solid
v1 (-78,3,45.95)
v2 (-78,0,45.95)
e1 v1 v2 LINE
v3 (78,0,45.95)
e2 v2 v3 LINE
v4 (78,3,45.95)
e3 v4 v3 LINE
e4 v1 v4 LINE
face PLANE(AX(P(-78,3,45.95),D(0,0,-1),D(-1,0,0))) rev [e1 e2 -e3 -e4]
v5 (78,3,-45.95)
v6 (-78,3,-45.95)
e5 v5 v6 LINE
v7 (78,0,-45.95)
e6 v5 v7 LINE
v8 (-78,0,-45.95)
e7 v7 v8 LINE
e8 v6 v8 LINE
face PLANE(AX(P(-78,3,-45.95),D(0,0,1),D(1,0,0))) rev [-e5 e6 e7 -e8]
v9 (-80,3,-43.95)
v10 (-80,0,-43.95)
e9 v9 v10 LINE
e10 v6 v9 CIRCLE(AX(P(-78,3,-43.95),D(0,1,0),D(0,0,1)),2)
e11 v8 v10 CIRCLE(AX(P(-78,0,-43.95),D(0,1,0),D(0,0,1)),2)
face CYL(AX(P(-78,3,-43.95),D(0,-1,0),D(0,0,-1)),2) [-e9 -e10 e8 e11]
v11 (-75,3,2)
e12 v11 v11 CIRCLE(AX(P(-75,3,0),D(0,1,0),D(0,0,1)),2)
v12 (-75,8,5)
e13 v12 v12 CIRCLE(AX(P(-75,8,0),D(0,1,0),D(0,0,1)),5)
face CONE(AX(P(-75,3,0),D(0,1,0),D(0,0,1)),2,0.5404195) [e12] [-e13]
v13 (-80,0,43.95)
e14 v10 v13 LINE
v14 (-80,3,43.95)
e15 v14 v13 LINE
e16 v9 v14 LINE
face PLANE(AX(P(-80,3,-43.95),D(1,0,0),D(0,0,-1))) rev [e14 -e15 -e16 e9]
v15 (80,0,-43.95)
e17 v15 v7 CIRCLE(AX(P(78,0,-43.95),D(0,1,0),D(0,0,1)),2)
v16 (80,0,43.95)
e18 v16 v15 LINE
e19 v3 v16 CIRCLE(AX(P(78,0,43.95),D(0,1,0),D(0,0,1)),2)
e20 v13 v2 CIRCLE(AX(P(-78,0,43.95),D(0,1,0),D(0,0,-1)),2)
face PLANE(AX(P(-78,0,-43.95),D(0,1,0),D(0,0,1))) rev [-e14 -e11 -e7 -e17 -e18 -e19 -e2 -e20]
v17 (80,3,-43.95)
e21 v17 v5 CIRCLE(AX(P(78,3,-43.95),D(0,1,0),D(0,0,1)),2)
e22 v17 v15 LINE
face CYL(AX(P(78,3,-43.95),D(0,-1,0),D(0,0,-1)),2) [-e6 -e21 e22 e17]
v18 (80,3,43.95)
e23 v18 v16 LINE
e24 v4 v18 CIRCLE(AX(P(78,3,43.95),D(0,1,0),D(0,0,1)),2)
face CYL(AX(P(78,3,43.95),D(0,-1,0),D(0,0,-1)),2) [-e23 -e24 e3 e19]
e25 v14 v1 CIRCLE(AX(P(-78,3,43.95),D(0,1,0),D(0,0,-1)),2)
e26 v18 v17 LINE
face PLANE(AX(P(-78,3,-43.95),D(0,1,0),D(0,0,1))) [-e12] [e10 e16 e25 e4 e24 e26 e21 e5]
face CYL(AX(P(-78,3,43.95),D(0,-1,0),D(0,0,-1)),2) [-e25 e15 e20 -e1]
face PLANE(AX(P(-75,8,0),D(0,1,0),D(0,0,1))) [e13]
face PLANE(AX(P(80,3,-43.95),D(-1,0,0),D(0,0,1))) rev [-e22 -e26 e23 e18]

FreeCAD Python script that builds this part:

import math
import FreeCAD as App
import Part
import Sketcher

doc = App.newDocument("Part")
body = doc.addObject("PartDesign::Body", "Body")

sketch1 = doc.addObject("Sketcher::SketchObject", "Sketch")
body.addObject(sketch1)
sketch1.AttachmentSupport = (doc.XZ_Plane, [""])
sketch1.MapMode = "FlatFace"
sketch1.addGeometry(Part.LineSegment(App.Vector(78, -46, 0), App.Vector(-78, -46, 0)), False)
sketch1.addGeometry(Part.ArcOfCircle(Part.Circle(App.Vector(-78, -43.9, 0), App.Vector(0, 0, 1), 2), math.radians(-180), math.radians(-90)), False)
sketch1.addGeometry(Part.LineSegment(App.Vector(-80, -44, 0), App.Vector(-80, 44, 0)), False)
sketch1.addGeometry(Part.ArcOfCircle(Part.Circle(App.Vector(-78, 43.9, 0), App.Vector(0, 0, 1), 2), math.radians(90), math.radians(180)), False)
sketch1.addGeometry(Part.LineSegment(App.Vector(-78, 46, 0), App.Vector(78, 46, 0)), False)
sketch1.addGeometry(Part.ArcOfCircle(Part.Circle(App.Vector(78, 43.9, 0), App.Vector(0, 0, 1), 2), math.radians(0), math.radians(90)), False)
sketch1.addGeometry(Part.LineSegment(App.Vector(80, 44, 0), App.Vector(80, -44, 0)), False)
sketch1.addGeometry(Part.ArcOfCircle(Part.Circle(App.Vector(78, -43.9, 0), App.Vector(0, 0, 1), 2), math.radians(-90), math.radians(0)), False)
sketch1.addConstraint(Sketcher.Constraint("Tangent", 0, 2, 1, 2))
sketch1.addConstraint(Sketcher.Constraint("Tangent", 1, 1, 2, 1))
sketch1.addConstraint(Sketcher.Constraint("Tangent", 2, 2, 3, 2))
sketch1.addConstraint(Sketcher.Constraint("Tangent", 3, 1, 4, 1))
sketch1.addConstraint(Sketcher.Constraint("Tangent", 4, 2, 5, 2))
sketch1.addConstraint(Sketcher.Constraint("Tangent", 5, 1, 6, 1))
sketch1.addConstraint(Sketcher.Constraint("Tangent", 6, 2, 7, 2))
sketch1.addConstraint(Sketcher.Constraint("Tangent", 7, 1, 0, 1))
sketch1.addConstraint(Sketcher.Constraint("Horizontal", 0))
sketch1.addConstraint(Sketcher.Constraint("Vertical", 2))
sketch1.addConstraint(Sketcher.Constraint("Horizontal", 4))
sketch1.addConstraint(Sketcher.Constraint("Vertical", 6))
sketch1.addConstraint(Sketcher.Constraint("Equal", 1, 3))
sketch1.addConstraint(Sketcher.Constraint("Equal", 3, 5))
sketch1.addConstraint(Sketcher.Constraint("Equal", 5, 7))
sketch1.addConstraint(Sketcher.Constraint("Symmetric", 1, 3, 5, 3, -1, 1))
sketch1.addConstraint(Sketcher.Constraint("Radius", 1, 2.0))
sketch1.addConstraint(Sketcher.Constraint("DistanceX", 0, 2, 0, 1, 156.0))
sketch1.addConstraint(Sketcher.Constraint("DistanceY", 2, 1, 2, 2, 87.9))
pad1 = doc.addObject("PartDesign::Pad", "Pad")
body.addObject(pad1)
pad1.Profile = sketch1
pad1.Length = 3
pad1.Reversed = True

sketch2 = doc.addObject("Sketcher::SketchObject", "Sketch001")
body.addObject(sketch2)
sketch2.AttachmentSupport = (doc.XZ_Plane, [""])
sketch2.MapMode = "FlatFace"
sketch2.AttachmentOffset = App.Placement(App.Vector(0, 0, -8), App.Rotation())
sketch2.addGeometry(Part.Circle(App.Vector(-75, 0, 0), App.Vector(0, 0, 1), 5), False)
sketch2.addConstraint(Sketcher.Constraint("PointOnObject", 0, 3, -1))
sketch2.addConstraint(Sketcher.Constraint("Diameter", 0, 10.0))
sketch2.addConstraint(Sketcher.Constraint("DistanceX", 0, 3, -1, 1, 75.0))

sketch3 = doc.addObject("Sketcher::SketchObject", "Sketch002")
body.addObject(sketch3)
sketch3.AttachmentSupport = (doc.XZ_Plane, [""])
sketch3.MapMode = "FlatFace"
sketch3.AttachmentOffset = App.Placement(App.Vector(0, 0, -3), App.Rotation())
sketch3.addGeometry(Part.Circle(App.Vector(-75, 0, 0), App.Vector(0, 0, 1), 2), False)
sketch3.addConstraint(Sketcher.Constraint("PointOnObject", 0, 3, -1))
sketch3.addConstraint(Sketcher.Constraint("Diameter", 0, 4.0))
sketch3.addConstraint(Sketcher.Constraint("DistanceX", 0, 3, -1, 1, 75.0))

additiveloft = doc.addObject("PartDesign::AdditiveLoft", "AdditiveLoft")
body.addObject(additiveloft)
additiveloft.Profile = sketch2
additiveloft.Sections = [sketch3]

doc.recompute()
